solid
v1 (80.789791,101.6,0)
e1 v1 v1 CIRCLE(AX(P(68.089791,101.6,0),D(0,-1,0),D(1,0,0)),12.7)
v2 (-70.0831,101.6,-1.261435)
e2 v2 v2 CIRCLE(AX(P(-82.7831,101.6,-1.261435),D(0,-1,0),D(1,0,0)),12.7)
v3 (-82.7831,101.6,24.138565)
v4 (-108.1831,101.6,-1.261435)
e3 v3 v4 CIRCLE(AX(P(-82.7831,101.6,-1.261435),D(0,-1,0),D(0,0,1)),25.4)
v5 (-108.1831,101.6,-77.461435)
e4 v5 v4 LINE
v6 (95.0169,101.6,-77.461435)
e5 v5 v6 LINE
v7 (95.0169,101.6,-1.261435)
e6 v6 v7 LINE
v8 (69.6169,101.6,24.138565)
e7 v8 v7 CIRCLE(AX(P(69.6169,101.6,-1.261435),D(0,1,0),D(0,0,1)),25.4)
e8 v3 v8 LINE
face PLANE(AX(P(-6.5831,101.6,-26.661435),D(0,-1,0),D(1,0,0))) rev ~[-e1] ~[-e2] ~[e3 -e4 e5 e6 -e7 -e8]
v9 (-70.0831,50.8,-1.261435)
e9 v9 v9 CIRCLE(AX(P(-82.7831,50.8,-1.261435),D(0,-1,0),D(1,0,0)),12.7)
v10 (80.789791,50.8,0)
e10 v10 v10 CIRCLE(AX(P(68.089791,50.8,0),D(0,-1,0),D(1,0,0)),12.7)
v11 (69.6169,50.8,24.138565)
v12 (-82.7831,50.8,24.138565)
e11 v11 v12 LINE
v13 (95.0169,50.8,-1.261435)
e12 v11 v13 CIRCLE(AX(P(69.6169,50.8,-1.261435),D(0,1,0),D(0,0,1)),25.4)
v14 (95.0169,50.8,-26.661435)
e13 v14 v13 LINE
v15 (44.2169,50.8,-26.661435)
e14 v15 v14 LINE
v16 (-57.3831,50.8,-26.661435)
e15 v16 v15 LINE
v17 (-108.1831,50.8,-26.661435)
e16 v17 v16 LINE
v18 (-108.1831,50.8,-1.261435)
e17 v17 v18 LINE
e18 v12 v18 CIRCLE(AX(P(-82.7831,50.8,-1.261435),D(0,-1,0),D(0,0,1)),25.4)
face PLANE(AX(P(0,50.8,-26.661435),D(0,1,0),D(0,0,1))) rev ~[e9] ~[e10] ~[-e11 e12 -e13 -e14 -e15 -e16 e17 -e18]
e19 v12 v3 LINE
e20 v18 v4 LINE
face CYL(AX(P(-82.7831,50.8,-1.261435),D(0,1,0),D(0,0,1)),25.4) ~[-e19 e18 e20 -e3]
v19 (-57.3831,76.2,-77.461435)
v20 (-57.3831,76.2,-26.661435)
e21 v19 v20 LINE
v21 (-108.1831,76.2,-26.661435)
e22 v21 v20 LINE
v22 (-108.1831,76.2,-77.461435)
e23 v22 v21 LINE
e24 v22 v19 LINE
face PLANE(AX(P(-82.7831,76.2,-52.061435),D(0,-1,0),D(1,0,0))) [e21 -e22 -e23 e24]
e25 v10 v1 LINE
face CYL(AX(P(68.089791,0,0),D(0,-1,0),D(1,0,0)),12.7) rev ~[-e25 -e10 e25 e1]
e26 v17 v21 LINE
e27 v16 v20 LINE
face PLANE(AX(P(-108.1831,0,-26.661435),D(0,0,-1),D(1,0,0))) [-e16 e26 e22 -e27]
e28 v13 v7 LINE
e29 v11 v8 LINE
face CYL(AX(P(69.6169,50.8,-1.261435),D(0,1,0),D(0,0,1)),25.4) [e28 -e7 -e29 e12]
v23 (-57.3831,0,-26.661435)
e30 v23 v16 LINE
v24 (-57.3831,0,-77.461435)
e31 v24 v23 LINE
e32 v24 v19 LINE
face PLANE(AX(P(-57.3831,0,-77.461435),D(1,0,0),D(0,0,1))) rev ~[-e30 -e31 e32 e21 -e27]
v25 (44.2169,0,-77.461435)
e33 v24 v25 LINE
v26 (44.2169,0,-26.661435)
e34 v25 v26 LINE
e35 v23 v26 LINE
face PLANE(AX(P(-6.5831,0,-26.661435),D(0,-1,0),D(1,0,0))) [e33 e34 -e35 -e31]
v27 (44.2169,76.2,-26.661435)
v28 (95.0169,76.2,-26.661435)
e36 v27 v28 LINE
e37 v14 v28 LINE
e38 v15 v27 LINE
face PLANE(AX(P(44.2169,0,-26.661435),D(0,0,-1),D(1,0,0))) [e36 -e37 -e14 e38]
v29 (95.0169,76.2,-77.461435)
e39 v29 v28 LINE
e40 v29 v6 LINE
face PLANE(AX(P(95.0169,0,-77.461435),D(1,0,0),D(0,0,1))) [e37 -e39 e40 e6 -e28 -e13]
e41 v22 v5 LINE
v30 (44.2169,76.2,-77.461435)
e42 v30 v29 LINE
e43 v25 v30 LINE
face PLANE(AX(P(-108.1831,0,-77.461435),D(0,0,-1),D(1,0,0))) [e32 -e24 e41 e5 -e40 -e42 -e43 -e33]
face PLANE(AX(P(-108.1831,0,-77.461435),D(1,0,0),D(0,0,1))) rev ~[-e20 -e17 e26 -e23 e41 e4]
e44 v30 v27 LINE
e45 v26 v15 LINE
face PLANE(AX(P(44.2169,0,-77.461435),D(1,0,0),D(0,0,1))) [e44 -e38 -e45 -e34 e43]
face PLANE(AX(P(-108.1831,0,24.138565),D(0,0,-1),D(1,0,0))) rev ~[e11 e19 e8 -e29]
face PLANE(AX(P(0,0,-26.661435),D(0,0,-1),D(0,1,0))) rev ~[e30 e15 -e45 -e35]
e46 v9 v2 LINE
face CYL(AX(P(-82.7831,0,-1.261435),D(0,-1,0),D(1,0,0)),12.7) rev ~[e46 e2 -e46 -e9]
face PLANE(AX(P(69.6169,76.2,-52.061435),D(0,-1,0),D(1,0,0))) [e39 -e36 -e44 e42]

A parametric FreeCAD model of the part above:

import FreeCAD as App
import Part
import Sketcher

V = App.Vector
Q = App.Units.Quantity


def edges_at(feature, points):
    """Names of the edges that pass closest to the given points."""
    edges = feature.Shape.Edges
    near = lambda p: min(range(len(edges)), key=lambda i: edges[i].distToShape(Part.Vertex(*p))[0])
    return sorted({f"Edge{near(p) + 1}" for p in points})

doc = App.newDocument("Part")
params = doc.addObject("Spreadsheet::Sheet", "Params")
for row, (alias, value) in enumerate([
    ("sketch1_width", "8 in"),
    ("sketch1_height", "4 in"),
    ("pad1_length", "4 in"),
    ("sketch2_width", "2 in"),
    ("pocket1_length", "10 in"),
    ("sketch3_width", "2 in"),
    ("pocket2_length", "3 in"),
    ("sketch4_width", "2 in"),
    ("pocket3_length", "3 in"),
    ("fillet_radius", "1 in"),
    ("fillet2_radius", "1 in"),
    ("sketch5_diameter", "1 in"),
    ("sketch6_diameter", "1 in"),
], start=1):
    params.set(f"A{row}", alias)
    params.set(f"B{row}", "=" + value)
    params.setAlias(f"B{row}", alias)

body = doc.addObject("PartDesign::Body", "Body")

# Sketch on XZ plane
sketch1 = doc.addObject("Sketcher::SketchObject", "Sketch")
body.addObject(sketch1)
sketch1.AttachmentSupport = (doc.XZ_Plane, [""])
sketch1.MapMode = "FlatFace"
sketch1.addGeometry(Part.LineSegment(V(-108, 24, 0), V(-108, -77, 0)), False)
sketch1.addGeometry(Part.LineSegment(V(-108, -77, 0), V(95, -77, 0)), False)
sketch1.addGeometry(Part.LineSegment(V(95, -77, 0), V(95, 24, 0)), False)
sketch1.addGeometry(Part.LineSegment(V(95, 24, 0), V(-108, 24, 0)), False)
sketch1.addConstraint(Sketcher.Constraint("Coincident", 0, 2, 1, 1))
sketch1.addConstraint(Sketcher.Constraint("Coincident", 1, 2, 2, 1))
sketch1.addConstraint(Sketcher.Constraint("Coincident", 2, 2, 3, 1))
sketch1.addConstraint(Sketcher.Constraint("Coincident", 3, 2, 0, 1))
sketch1.addConstraint(Sketcher.Constraint("Vertical", 0))
sketch1.addConstraint(Sketcher.Constraint("Horizontal", 1))
sketch1.addConstraint(Sketcher.Constraint("Vertical", 2))
sketch1.addConstraint(Sketcher.Constraint("Horizontal", 3))
sketch1.addConstraint(Sketcher.Constraint("DistanceX", 1, 1, 1, 2, Q("8 in")))
sketch1.addConstraint(Sketcher.Constraint("DistanceY", 0, 2, 0, 1, Q("4 in")))
sketch1.addConstraint(Sketcher.Constraint("DistanceX", 0, 2, -1, 1, 108.1831))
sketch1.addConstraint(Sketcher.Constraint("DistanceY", 0, 2, -1, 1, 77.461435))
sketch1.setExpression("Constraints[8]", "Params.sketch1_width")
sketch1.setExpression("Constraints[9]", "Params.sketch1_height")
pad1 = doc.addObject("PartDesign::Pad", "Pad")
body.addObject(pad1)
pad1.Profile = sketch1
pad1.setExpression("Length", "Params.pad1_length")
pad1.Reversed = True

# Sketch on YZ plane
sketch2 = doc.addObject("Sketcher::SketchObject", "Sketch001")
body.addObject(sketch2)
sketch2.AttachmentSupport = (doc.YZ_Plane, [""])
sketch2.MapMode = "FlatFace"
sketch2.addGeometry(Part.LineSegment(V(0, 24, 0), V(0, -27, 0)), False)
sketch2.addGeometry(Part.LineSegment(V(0, -27, 0), V(51, -27, 0)), False)
sketch2.addGeometry(Part.LineSegment(V(51, -27, 0), V(51, 24, 0)), False)
sketch2.addGeometry(Part.LineSegment(V(51, 24, 0), V(0, 24, 0)), False)
sketch2.addConstraint(Sketcher.Constraint("Coincident", 0, 2, 1, 1))
sketch2.addConstraint(Sketcher.Constraint("Coincident", 1, 2, 2, 1))
sketch2.addConstraint(Sketcher.Constraint("Coincident", 2, 2, 3, 1))
sketch2.addConstraint(Sketcher.Constraint("Coincident", 3, 2, 0, 1))
sketch2.addConstraint(Sketcher.Constraint("Vertical", 0))
sketch2.addConstraint(Sketcher.Constraint("Horizontal", 1))
sketch2.addConstraint(Sketcher.Constraint("Vertical", 2))
sketch2.addConstraint(Sketcher.Constraint("Horizontal", 3))
sketch2.addConstraint(Sketcher.Constraint("PointOnObject", 0, 2, -2))
sketch2.addConstraint(Sketcher.Constraint("Equal", 3, 0))
sketch2.addConstraint(Sketcher.Constraint("DistanceX", 1, 1, 1, 2, Q("2 in")))
sketch2.addConstraint(Sketcher.Constraint("DistanceY", 0, 2, -1, 1, 26.661435))
sketch2.setExpression("Constraints[10]", "Params.sketch2_width")
pocket1 = doc.addObject("PartDesign::Pocket", "Pocket")
body.addObject(pocket1)
pocket1.Profile = sketch2
pocket1.setExpression("Length", "Params.pocket1_length")
pocket1.Midplane = True

# Sketch on XZ plane
sketch3 = doc.addObject("Sketcher::SketchObject", "Sketch002")
body.addObject(sketch3)
sketch3.AttachmentSupport = (doc.XZ_Plane, [""])
sketch3.MapMode = "FlatFace"
sketch3.addGeometry(Part.LineSegment(V(-108, -27, 0), V(-108, -77, 0)), False)
sketch3.addGeometry(Part.LineSegment(V(-108, -77, 0), V(-57, -77, 0)), False)
sketch3.addGeometry(Part.LineSegment(V(-57, -77, 0), V(-57, -27, 0)), False)
sketch3.addGeometry(Part.LineSegment(V(-57, -27, 0), V(-108, -27, 0)), False)
sketch3.addConstraint(Sketcher.Constraint("Coincident", 0, 2, 1, 1))
sketch3.addConstraint(Sketcher.Constraint("Coincident", 1, 2, 2, 1))
sketch3.addConstraint(Sketcher.Constraint("Coincident", 2, 2, 3, 1))
sketch3.addConstraint(Sketcher.Constraint("Coincident", 3, 2, 0, 1))
sketch3.addConstraint(Sketcher.Constraint("Vertical", 0))
sketch3.addConstraint(Sketcher.Constraint("Horizontal", 1))
sketch3.addConstraint(Sketcher.Constraint("Vertical", 2))
sketch3.addConstraint(Sketcher.Constraint("Horizontal", 3))
sketch3.addConstraint(Sketcher.Constraint("Equal", 3, 0))
sketch3.addConstraint(Sketcher.Constraint("DistanceX", 1, 1, 1, 2, Q("2 in")))
sketch3.addConstraint(Sketcher.Constraint("DistanceX", 0, 2, -1, 1, 108.1831))
sketch3.addConstraint(Sketcher.Constraint("DistanceY", 0, 2, -1, 1, 77.461435))
sketch3.setExpression("Constraints[9]", "Params.sketch3_width")
pocket2 = doc.addObject("PartDesign::Pocket", "Pocket001")
body.addObject(pocket2)
pocket2.Profile = sketch3
pocket2.setExpression("Length", "Params.pocket2_length")

# Sketch on XZ plane
sketch4 = doc.addObject("Sketcher::SketchObject", "Sketch003")
body.addObject(sketch4)
sketch4.AttachmentSupport = (doc.XZ_Plane, [""])
sketch4.MapMode = "FlatFace"
sketch4.addGeometry(Part.LineSegment(V(44, -27, 0), V(44, -77, 0)), False)
sketch4.addGeometry(Part.LineSegment(V(44, -77, 0), V(95, -77, 0)), False)
sketch4.addGeometry(Part.LineSegment(V(95, -77, 0), V(95, -27, 0)), False)
sketch4.addGeometry(Part.LineSegment(V(95, -27, 0), V(44, -27, 0)), False)
sketch4.addConstraint(Sketcher.Constraint("Coincident", 0, 2, 1, 1))
sketch4.addConstraint(Sketcher.Constraint("Coincident", 1, 2, 2, 1))
sketch4.addConstraint(Sketcher.Constraint("Coincident", 2, 2, 3, 1))
sketch4.addConstraint(Sketcher.Constraint("Coincident", 3, 2, 0, 1))
sketch4.addConstraint(Sketcher.Constraint("Vertical", 0))
sketch4.addConstraint(Sketcher.Constraint("Horizontal", 1))
sketch4.addConstraint(Sketcher.Constraint("Vertical", 2))
sketch4.addConstraint(Sketcher.Constraint("Horizontal", 3))
sketch4.addConstraint(Sketcher.Constraint("Equal", 3, 0))
sketch4.addConstraint(Sketcher.Constraint("DistanceX", 1, 1, 1, 2, Q("2 in")))
sketch4.addConstraint(Sketcher.Constraint("DistanceX", -1, 1, 0, 2, 44.2169))
sketch4.addConstraint(Sketcher.Constraint("DistanceY", 0, 2, -1, 1, 77.461435))
sketch4.setExpression("Constraints[9]", "Params.sketch4_width")
pocket3 = doc.addObject("PartDesign::Pocket", "Pocket002")
body.addObject(pocket3)
pocket3.Profile = sketch4
pocket3.setExpression("Length", "Params.pocket3_length")
doc.recompute()

fillet = doc.addObject("PartDesign::Fillet", "Fillet")
body.addObject(fillet)
fillet.Base = (pocket3, edges_at(pocket3, [(95.017, 76.2, 24.139)]))
fillet.setExpression("Radius", "Params.fillet_radius")
doc.recompute()

fillet2 = doc.addObject("PartDesign::Fillet", "Fillet001")
body.addObject(fillet2)
fillet2.Base = (fillet, edges_at(fillet, [(-108.183, 76.2, 24.139)]))
fillet2.setExpression("Radius", "Params.fillet2_radius")

# Sketch on XZ plane
sketch5 = doc.addObject("Sketcher::SketchObject", "Sketch004")
body.addObject(sketch5)
sketch5.AttachmentSupport = (doc.XZ_Plane, [""])
sketch5.MapMode = "FlatFace"
sketch5.addGeometry(Part.Circle(V(68, 0, 0), V(0, 0, 1), 13), False)
sketch5.addConstraint(Sketcher.Constraint("PointOnObject", 0, 3, -1))
sketch5.addConstraint(Sketcher.Constraint("Diameter", 0, Q("1 in")))
sketch5.addConstraint(Sketcher.Constraint("DistanceX", -1, 1, 0, 3, 68.089791))
sketch5.setExpression("Constraints[1]", "Params.sketch5_diameter")
pocket4 = doc.addObject("PartDesign::Pocket", "Pocket003")
body.addObject(pocket4)
pocket4.Profile = sketch5
pocket4.Type = "ThroughAll"

# Sketch on XZ plane
sketch6 = doc.addObject("Sketcher::SketchObject", "Sketch005")
body.addObject(sketch6)
sketch6.AttachmentSupport = (doc.XZ_Plane, [""])
sketch6.MapMode = "FlatFace"
sketch6.addGeometry(Part.Circle(V(-83, -1, 0), V(0, 0, 1), 13), False)
sketch6.addConstraint(Sketcher.Constraint("Diameter", 0, Q("1 in")))
sketch6.addConstraint(Sketcher.Constraint("DistanceX", 0, 3, -1, 1, 82.7831))
sketch6.addConstraint(Sketcher.Constraint("DistanceY", 0, 3, -1, 1, 1.261435))
sketch6.setExpression("Constraints[0]", "Params.sketch6_diameter")
pocket5 = doc.addObject("PartDesign::Pocket", "Pocket004")
body.addObject(pocket5)
pocket5.Profile = sketch6
pocket5.Type = "ThroughAll"

doc.recompute()
